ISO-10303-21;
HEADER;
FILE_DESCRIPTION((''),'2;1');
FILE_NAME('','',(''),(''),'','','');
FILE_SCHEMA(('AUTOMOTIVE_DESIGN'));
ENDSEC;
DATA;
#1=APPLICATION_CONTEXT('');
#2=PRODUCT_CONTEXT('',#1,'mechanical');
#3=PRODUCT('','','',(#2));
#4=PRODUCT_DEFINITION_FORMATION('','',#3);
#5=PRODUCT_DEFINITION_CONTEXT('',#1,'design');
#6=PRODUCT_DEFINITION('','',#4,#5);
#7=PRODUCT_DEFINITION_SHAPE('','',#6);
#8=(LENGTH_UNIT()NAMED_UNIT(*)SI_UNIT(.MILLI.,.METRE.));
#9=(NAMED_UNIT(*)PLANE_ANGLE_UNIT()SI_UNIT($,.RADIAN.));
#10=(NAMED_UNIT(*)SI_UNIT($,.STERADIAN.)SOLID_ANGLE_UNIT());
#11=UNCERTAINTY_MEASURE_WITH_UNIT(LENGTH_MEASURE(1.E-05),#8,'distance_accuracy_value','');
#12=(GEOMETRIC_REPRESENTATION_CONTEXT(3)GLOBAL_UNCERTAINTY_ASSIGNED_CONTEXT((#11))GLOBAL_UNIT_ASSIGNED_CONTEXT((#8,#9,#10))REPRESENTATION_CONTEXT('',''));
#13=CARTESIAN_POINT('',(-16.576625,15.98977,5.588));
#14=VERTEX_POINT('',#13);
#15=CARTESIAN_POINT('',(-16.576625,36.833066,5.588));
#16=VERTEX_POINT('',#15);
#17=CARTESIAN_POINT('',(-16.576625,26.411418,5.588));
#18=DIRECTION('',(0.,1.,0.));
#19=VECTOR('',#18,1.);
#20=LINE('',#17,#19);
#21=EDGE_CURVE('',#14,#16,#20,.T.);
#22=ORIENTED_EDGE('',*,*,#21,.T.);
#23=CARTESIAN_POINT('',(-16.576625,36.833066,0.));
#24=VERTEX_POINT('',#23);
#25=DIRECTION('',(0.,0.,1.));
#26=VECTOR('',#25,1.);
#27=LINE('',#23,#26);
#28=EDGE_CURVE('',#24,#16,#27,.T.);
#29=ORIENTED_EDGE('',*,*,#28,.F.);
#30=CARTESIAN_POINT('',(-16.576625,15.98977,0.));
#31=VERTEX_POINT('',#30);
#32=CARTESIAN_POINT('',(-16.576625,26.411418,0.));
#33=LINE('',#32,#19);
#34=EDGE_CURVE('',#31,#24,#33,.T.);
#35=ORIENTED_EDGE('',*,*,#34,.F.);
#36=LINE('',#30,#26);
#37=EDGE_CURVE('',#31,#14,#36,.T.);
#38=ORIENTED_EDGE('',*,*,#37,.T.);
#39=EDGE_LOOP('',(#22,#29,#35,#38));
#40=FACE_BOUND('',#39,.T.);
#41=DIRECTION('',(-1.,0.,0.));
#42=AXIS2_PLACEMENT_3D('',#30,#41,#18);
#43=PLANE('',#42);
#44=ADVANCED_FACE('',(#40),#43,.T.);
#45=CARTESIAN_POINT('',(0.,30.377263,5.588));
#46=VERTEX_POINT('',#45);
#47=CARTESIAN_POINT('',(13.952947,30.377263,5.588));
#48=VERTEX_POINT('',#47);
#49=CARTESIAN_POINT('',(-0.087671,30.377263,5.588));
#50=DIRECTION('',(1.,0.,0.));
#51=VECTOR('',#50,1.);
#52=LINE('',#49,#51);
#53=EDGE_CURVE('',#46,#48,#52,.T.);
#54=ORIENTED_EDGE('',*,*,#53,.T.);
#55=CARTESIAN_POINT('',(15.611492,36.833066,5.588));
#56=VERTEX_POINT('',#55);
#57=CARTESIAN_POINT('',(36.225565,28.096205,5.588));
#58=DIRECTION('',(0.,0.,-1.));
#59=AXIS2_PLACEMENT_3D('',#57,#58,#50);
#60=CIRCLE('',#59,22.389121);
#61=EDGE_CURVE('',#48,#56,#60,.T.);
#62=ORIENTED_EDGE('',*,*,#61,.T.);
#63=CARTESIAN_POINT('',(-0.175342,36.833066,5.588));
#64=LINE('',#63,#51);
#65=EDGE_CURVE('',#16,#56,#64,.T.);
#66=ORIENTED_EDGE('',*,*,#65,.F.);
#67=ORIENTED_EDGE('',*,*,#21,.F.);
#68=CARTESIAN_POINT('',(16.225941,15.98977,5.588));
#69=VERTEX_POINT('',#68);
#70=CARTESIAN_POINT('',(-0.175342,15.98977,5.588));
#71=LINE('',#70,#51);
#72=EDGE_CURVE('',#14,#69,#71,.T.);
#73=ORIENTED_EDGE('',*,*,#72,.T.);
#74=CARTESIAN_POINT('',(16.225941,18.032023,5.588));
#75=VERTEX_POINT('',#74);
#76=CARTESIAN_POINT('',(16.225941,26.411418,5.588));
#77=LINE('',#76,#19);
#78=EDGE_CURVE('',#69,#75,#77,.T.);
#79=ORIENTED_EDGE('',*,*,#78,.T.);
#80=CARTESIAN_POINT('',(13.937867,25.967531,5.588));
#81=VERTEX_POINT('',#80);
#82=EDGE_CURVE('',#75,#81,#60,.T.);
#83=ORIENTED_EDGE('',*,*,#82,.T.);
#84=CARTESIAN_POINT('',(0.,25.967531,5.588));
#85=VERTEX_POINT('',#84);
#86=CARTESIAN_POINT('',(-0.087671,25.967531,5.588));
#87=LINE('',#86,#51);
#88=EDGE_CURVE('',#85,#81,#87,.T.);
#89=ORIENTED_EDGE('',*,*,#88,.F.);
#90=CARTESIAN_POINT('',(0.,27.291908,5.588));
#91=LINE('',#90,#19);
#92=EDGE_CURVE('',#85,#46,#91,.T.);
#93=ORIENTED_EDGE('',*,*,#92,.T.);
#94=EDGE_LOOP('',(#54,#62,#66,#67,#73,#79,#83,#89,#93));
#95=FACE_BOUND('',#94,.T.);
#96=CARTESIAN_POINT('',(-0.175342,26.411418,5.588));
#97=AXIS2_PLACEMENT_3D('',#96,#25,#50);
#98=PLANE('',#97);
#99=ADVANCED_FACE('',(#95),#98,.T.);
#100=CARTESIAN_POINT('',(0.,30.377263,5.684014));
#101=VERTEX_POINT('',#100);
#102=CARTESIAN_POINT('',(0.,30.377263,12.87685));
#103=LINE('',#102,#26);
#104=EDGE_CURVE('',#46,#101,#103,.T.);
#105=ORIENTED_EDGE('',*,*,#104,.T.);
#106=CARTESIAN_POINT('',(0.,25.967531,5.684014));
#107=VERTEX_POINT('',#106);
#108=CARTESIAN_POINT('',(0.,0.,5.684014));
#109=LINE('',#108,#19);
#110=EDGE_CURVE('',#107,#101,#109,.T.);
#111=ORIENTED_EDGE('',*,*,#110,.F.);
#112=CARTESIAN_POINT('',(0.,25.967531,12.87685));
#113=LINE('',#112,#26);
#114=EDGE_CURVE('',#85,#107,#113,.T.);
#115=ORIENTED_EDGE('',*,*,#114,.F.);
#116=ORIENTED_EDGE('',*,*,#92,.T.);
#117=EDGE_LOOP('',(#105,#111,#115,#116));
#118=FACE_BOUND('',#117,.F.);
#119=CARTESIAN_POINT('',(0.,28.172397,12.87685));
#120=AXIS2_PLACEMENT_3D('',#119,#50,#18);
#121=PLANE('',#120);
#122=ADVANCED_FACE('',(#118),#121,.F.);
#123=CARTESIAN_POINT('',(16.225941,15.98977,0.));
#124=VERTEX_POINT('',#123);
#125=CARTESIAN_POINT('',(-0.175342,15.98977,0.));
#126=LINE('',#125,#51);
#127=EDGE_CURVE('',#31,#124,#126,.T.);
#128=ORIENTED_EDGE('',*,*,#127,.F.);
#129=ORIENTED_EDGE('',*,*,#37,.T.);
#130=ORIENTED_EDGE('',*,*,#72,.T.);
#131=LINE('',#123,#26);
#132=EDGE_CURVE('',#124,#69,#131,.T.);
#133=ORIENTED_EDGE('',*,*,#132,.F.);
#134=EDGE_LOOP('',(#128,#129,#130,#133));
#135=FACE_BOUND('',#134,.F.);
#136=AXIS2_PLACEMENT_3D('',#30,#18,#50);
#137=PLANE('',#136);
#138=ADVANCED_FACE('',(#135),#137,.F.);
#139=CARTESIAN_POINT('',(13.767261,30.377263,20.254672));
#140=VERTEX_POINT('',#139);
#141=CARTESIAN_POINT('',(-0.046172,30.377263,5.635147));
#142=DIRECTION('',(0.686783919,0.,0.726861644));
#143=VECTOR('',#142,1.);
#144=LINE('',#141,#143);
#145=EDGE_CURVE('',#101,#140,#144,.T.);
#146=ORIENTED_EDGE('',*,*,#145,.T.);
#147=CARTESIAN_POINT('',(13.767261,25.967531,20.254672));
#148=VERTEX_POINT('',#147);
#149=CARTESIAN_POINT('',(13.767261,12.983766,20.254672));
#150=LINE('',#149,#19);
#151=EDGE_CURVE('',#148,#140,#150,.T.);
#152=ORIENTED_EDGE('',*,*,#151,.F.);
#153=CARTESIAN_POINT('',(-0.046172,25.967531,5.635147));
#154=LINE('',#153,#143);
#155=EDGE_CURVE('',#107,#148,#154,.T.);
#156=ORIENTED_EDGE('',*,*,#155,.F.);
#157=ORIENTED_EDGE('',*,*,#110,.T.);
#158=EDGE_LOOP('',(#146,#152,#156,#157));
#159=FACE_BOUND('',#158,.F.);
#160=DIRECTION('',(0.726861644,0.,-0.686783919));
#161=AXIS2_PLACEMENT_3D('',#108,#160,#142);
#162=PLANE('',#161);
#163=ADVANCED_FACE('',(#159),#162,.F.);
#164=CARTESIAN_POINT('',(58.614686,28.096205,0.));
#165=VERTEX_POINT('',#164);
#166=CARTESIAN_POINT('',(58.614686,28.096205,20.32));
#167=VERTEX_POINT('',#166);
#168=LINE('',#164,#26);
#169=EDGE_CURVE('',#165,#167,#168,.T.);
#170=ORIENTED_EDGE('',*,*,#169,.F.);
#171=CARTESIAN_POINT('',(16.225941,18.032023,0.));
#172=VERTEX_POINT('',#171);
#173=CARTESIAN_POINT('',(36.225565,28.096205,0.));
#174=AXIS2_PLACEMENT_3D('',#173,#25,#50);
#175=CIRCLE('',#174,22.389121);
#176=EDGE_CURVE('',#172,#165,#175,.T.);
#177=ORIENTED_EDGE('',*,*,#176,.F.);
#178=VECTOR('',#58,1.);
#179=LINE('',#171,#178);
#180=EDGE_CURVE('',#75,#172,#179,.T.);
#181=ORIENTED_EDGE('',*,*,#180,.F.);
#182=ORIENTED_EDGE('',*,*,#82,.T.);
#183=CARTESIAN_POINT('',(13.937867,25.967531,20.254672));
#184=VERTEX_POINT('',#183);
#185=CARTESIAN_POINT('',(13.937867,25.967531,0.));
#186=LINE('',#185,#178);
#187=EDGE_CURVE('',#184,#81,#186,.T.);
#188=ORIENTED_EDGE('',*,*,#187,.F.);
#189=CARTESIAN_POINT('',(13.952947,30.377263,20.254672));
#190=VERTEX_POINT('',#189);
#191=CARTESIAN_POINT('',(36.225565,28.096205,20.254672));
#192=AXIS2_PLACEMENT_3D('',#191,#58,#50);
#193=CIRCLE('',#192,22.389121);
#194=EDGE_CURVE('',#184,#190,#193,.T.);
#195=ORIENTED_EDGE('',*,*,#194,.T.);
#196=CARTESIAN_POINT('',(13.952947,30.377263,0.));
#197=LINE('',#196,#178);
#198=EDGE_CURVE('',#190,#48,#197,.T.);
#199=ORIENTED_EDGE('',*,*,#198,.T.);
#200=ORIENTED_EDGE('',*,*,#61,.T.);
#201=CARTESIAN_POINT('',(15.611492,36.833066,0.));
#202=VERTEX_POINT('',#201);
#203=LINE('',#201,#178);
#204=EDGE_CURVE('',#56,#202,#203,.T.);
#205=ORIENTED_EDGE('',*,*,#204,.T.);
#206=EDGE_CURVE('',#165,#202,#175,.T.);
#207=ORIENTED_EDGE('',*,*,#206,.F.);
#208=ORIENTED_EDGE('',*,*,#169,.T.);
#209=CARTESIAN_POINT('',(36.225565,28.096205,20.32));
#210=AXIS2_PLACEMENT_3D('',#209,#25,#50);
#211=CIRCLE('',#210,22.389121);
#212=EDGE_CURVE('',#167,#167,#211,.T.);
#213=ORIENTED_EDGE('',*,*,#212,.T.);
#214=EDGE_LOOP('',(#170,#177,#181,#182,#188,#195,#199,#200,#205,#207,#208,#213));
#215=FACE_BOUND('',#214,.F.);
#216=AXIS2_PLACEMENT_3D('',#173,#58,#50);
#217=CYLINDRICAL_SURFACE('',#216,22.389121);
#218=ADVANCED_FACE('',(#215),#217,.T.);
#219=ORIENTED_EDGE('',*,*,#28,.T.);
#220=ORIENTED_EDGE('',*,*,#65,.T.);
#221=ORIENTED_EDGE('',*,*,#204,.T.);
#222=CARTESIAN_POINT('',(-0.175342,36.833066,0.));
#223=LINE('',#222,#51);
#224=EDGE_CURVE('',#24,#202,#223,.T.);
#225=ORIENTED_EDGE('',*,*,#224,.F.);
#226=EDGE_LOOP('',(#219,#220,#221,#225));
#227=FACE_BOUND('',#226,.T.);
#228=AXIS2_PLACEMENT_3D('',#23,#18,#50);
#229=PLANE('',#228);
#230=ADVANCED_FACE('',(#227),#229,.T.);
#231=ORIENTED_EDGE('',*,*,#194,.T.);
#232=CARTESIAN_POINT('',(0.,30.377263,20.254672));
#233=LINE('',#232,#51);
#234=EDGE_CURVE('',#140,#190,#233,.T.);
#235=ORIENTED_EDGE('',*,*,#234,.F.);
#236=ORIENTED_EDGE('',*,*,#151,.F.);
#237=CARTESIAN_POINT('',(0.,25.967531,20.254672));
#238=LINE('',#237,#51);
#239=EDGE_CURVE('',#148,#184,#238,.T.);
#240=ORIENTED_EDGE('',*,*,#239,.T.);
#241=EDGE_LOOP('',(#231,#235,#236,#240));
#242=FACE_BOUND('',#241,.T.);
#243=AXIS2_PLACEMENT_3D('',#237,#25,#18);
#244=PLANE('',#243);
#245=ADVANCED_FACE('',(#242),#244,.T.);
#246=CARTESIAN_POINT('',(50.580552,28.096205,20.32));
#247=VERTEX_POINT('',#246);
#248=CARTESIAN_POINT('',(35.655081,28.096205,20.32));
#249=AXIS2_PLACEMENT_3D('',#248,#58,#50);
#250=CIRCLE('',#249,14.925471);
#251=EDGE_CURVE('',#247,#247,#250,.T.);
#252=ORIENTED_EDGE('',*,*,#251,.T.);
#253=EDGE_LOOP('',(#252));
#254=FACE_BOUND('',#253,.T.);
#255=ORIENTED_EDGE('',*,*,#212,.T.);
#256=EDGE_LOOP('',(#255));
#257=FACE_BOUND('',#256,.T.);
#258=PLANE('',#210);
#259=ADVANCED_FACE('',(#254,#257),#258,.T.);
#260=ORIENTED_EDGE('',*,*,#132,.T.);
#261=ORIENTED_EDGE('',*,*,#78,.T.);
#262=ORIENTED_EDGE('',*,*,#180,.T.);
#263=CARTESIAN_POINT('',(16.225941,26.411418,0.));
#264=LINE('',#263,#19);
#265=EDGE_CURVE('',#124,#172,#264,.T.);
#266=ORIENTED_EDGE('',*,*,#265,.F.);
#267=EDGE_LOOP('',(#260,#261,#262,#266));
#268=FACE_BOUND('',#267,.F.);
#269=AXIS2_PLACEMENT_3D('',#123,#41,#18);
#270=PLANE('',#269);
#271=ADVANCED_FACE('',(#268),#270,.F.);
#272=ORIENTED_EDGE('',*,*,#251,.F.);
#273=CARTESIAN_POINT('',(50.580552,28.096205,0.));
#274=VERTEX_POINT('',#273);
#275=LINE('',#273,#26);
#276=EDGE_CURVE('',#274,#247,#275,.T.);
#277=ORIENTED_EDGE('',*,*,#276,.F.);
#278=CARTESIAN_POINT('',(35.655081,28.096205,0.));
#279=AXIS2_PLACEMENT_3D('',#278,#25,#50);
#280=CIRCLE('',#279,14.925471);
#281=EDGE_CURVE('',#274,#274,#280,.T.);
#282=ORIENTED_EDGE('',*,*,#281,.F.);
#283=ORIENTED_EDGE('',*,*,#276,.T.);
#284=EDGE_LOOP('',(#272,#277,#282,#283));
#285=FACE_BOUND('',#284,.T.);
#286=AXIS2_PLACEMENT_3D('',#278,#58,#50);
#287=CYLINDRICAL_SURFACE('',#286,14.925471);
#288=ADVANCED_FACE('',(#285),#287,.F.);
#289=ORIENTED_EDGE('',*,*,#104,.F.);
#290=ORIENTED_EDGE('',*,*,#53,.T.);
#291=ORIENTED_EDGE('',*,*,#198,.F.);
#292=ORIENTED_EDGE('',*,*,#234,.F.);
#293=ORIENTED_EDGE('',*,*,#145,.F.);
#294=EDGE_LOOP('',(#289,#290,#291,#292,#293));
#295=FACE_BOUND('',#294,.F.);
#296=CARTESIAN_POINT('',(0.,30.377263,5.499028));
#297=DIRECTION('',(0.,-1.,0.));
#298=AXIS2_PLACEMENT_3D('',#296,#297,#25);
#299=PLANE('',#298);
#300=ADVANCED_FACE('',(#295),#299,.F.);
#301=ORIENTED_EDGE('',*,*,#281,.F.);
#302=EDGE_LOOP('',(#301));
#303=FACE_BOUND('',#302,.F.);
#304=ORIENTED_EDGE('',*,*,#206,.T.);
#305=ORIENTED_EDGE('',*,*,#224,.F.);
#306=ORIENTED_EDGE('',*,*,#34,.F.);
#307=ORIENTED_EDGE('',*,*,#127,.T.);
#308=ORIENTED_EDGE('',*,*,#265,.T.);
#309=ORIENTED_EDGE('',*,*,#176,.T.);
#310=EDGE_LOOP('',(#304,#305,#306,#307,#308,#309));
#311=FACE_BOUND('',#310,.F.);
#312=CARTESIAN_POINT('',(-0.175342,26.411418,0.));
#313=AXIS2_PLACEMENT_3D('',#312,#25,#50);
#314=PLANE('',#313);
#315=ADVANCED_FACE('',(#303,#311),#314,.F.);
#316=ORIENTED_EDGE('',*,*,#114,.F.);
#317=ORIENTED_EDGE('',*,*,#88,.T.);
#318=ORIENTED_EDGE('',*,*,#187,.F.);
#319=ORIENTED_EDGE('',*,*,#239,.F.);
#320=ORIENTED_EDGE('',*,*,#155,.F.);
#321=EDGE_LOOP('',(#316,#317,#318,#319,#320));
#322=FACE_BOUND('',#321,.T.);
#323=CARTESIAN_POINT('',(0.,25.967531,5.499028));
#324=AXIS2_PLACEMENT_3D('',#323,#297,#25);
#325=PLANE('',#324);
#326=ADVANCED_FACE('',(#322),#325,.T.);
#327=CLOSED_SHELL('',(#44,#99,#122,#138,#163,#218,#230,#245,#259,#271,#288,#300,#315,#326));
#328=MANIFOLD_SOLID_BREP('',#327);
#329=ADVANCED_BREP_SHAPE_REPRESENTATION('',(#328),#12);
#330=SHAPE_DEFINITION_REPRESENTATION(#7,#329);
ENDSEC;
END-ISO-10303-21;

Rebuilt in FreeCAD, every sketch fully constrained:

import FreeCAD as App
import Part
import Sketcher

V = App.Vector
Q = App.Units.Quantity


def add_polygon(sketch, points):
    """Adds a closed chain of lines whose ends are joined by coincident constraints."""
    first, n = sketch.GeometryCount, len(points)
    for a, b in zip(points, points[1:] + points[:1]):
        sketch.addGeometry(Part.LineSegment(App.Vector(*a, 0), App.Vector(*b, 0)), False)
    for i in range(n):
        sketch.addConstraint(Sketcher.Constraint("Coincident", first + i, 2, first + (i + 1) % n, 1))

doc = App.newDocument("Part")
body = doc.addObject("PartDesign::Body", "Body")

# Sketch on XY plane
sketch1 = body.newObject("Sketcher::SketchObject", "Sketch")
sketch1.AttachmentSupport = (doc.getObject("XY_Plane"), [""])
sketch1.MapMode = "FlatFace"
sketch1.addGeometry(Part.Circle(V(36.225565, 28.096205, 0), V(0, 0, 1), 22.389121), False)
sketch1.addConstraint([
    Sketcher.Constraint("Diameter", 0, 44.778242),
    Sketcher.Constraint("DistanceX", -1, 1, 0, 3, 36.225565),
    Sketcher.Constraint("DistanceY", -1, 1, 0, 3, 28.096205),
])
pad1 = body.newObject("PartDesign::Pad", "Pad")
pad1.Profile = sketch1
pad1.Length = Q("0.8 in")

# Sketch on XY plane
sketch2 = body.newObject("Sketcher::SketchObject", "Sketch001")
sketch2.AttachmentSupport = (doc.getObject("XY_Plane"), [""])
sketch2.MapMode = "FlatFace"
sketch2.addGeometry(Part.Circle(V(35.655081, 28.096205, 0), V(0, 0, 1), 14.925471), False)
sketch2.addConstraint([
    Sketcher.Constraint("Diameter", 0, 29.850942),
    Sketcher.Constraint("DistanceX", -1, 1, 0, 3, 35.655081),
    Sketcher.Constraint("DistanceY", -1, 1, 0, 3, 28.096205),
])
pocket1 = body.newObject("PartDesign::Pocket", "Pocket")
pocket1.Profile = sketch2
pocket1.Type = "ThroughAll"
pocket1.Reversed = True

# Sketch on XY plane
sketch3 = body.newObject("Sketcher::SketchObject", "Sketch002")
sketch3.AttachmentSupport = (doc.getObject("XY_Plane"), [""])
sketch3.MapMode = "FlatFace"
add_polygon(sketch3, [(-16.576625, 36.833066), (-16.576625, 15.98977), (16.225941, 15.98977), (16.225941, 36.833066)])  # lines 0-3
sketch3.addConstraint([
    Sketcher.Constraint("Vertical", 0),
    Sketcher.Constraint("Horizontal", 1),
    Sketcher.Constraint("Vertical", 2),
    Sketcher.Constraint("Horizontal", 3),
    Sketcher.Constraint("DistanceX", 1, 1, 1, 2, 32.802565),
    Sketcher.Constraint("DistanceY", 0, 2, 0, 1, 20.843296),
    Sketcher.Constraint("DistanceY", -1, 1, 0, 2, 15.98977),
    Sketcher.Constraint("DistanceX", -1, 1, 1, 2, 16.225941),
])
pad2 = body.newObject("PartDesign::Pad", "Pad001")
pad2.Profile = sketch3
pad2.Length = Q("0.22 in")

# Sketch on YZ plane
sketch4 = body.newObject("Sketcher::SketchObject", "Sketch003")
sketch4.AttachmentSupport = (doc.getObject("YZ_Plane"), [""])
sketch4.MapMode = "FlatFace"
add_polygon(sketch4, [(25.967531, 20.254672), (25.967531, 5.499028), (30.377263, 5.499028), (30.377263, 20.254672)])  # lines 0-3
sketch4.addConstraint([
    Sketcher.Constraint("Vertical", 0),
    Sketcher.Constraint("Horizontal", 1),
    Sketcher.Constraint("Vertical", 2),
    Sketcher.Constraint("Horizontal", 3),
    Sketcher.Constraint("DistanceX", 1, 1, 1, 2, 4.409732),
    Sketcher.Constraint("DistanceY", 0, 2, 0, 1, 14.755644),
    Sketcher.Constraint("DistanceX", -1, 1, 0, 2, 25.967531),
    Sketcher.Constraint("DistanceY", -1, 1, 2, 2, 20.254672),
])
pad3 = body.newObject("PartDesign::Pad", "Pad002")
pad3.Profile = sketch4
pad3.Length = Q("0.66 in")

# Sketch on XZ plane
sketch5 = body.newObject("Sketcher::SketchObject", "Sketch004")
sketch5.AttachmentSupport = (doc.getObject("XZ_Plane"), [""])
sketch5.MapMode = "FlatFace"
add_polygon(sketch5, [(0, 5.684014), (13.850843, 20.343132), (0, 20.852523)])  # lines 0-2
sketch5.addConstraint([
    Sketcher.Constraint("Vertical", 2),
    Sketcher.Constraint("PointOnObject", 1, 2, -2),
    Sketcher.Constraint("DistanceY", 2, 2, 2, 1, 15.168509),
    Sketcher.Constraint("DistanceY", 0, 2, 1, 2, 0.509391),
    Sketcher.Constraint("Distance", 0, 20.167687),
    Sketcher.Constraint("DistanceY", -1, 1, 0, 2, 20.343132),
])
pocket2 = body.newObject("PartDesign::Pocket", "Pocket001")
pocket2.Profile = sketch5
pocket2.Type = "ThroughAll"

doc.recompute()
